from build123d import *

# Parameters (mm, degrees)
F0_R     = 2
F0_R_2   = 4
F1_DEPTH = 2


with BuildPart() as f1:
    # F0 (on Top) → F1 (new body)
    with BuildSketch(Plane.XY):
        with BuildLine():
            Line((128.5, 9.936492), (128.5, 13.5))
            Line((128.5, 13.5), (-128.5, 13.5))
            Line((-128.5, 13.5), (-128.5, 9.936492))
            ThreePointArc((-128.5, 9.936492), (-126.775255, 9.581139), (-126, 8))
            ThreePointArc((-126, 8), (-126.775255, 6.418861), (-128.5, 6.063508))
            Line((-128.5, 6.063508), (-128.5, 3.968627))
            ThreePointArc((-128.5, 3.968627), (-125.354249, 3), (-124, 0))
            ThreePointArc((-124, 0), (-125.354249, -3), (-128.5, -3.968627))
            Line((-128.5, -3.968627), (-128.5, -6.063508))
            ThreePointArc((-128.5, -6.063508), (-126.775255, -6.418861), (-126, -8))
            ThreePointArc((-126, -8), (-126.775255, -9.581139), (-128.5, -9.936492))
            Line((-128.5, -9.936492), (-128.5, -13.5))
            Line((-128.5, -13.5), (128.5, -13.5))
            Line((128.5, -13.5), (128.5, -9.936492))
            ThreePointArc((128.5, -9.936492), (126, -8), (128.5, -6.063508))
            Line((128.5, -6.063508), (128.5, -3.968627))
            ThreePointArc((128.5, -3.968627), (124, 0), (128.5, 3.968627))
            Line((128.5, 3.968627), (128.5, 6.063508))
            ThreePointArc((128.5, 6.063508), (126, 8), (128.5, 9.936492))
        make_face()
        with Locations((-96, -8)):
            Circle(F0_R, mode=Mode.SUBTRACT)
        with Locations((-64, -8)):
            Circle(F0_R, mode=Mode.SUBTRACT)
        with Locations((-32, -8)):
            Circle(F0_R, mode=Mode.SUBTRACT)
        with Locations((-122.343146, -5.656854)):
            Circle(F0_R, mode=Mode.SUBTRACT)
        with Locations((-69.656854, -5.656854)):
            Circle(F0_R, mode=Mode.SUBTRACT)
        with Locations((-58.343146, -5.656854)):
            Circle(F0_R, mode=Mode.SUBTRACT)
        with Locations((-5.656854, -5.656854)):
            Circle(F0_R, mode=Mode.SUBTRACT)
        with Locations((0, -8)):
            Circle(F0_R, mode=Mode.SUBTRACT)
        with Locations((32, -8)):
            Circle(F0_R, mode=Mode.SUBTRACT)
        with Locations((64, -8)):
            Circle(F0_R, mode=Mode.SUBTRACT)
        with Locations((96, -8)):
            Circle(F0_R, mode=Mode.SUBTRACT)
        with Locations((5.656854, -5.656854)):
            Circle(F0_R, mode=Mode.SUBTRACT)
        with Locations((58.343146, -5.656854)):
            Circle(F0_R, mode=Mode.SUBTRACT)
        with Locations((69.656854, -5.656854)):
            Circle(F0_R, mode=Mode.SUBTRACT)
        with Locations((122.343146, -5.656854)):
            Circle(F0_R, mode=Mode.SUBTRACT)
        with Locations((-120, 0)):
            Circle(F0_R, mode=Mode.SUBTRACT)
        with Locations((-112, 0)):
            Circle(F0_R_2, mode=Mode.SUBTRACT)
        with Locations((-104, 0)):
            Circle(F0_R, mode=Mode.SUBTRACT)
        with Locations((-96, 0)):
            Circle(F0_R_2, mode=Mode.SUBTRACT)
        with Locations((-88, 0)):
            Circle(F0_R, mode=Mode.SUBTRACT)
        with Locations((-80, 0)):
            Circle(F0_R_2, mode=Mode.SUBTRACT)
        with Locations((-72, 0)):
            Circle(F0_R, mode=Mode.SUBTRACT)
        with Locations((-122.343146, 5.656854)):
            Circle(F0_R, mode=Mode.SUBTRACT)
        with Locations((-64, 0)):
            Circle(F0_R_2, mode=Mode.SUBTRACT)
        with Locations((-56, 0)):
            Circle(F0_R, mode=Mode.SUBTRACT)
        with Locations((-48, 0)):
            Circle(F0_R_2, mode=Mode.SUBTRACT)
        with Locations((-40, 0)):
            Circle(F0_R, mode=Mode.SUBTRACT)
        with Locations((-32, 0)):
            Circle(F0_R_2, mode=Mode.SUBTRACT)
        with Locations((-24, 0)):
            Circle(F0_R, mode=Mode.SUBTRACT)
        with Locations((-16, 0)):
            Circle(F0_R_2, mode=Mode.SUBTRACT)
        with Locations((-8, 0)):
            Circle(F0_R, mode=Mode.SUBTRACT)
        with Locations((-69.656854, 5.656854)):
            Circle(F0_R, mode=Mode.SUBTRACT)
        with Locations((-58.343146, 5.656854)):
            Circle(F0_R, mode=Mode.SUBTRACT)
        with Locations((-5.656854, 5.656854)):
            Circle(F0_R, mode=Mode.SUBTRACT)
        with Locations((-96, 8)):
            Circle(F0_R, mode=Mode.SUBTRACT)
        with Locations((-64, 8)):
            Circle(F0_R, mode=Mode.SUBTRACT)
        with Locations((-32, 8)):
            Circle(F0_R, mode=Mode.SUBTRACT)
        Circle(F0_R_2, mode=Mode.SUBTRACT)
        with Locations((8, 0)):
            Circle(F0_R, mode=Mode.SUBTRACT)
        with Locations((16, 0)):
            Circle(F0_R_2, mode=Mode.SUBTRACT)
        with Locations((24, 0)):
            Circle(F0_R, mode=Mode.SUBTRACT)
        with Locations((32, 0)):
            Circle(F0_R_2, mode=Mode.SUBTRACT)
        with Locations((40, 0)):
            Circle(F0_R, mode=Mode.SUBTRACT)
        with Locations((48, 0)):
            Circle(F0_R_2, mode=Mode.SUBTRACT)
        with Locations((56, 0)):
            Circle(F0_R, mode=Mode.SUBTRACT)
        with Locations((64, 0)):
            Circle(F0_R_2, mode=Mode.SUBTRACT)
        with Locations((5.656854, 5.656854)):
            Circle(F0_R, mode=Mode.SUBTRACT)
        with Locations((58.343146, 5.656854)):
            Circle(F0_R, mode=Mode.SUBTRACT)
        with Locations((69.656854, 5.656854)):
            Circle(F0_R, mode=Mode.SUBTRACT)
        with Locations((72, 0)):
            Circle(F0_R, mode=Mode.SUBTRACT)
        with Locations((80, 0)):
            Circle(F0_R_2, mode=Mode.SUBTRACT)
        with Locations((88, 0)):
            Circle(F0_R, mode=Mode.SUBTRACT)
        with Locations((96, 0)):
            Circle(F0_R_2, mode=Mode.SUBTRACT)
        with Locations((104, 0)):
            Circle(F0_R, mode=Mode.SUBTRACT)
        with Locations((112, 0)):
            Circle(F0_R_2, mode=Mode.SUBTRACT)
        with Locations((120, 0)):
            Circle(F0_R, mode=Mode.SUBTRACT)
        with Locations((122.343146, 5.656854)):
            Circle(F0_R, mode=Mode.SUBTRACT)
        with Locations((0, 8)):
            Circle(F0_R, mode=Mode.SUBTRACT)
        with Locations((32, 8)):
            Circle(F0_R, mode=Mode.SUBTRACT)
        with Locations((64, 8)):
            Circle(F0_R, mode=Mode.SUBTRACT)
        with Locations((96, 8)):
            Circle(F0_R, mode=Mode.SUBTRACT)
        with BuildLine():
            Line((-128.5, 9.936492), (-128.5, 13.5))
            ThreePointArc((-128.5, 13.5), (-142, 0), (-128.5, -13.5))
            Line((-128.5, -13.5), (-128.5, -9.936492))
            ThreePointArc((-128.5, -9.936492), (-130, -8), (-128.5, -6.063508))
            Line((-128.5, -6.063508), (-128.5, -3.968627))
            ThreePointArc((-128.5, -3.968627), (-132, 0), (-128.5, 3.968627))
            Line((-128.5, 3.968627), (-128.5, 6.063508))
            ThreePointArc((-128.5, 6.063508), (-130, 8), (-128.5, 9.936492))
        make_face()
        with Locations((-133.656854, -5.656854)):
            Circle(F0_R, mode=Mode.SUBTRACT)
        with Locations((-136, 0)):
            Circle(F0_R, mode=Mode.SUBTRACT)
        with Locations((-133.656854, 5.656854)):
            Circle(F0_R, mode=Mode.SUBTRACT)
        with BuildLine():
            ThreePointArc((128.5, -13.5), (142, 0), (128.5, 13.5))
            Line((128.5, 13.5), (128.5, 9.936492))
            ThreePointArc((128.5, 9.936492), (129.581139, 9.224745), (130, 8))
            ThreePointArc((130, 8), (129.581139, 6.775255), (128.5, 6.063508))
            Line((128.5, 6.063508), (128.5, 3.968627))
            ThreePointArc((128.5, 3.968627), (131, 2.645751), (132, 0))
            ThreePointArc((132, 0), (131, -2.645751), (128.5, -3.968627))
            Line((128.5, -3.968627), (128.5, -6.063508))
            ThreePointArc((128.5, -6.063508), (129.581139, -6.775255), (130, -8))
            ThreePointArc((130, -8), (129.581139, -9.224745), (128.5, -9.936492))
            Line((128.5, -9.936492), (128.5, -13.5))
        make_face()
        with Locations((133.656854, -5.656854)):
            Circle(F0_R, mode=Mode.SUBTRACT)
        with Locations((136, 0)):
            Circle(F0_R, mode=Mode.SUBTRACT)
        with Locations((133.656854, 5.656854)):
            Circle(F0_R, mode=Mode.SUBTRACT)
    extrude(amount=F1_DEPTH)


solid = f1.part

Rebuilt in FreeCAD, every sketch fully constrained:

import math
import FreeCAD as App
import Part
import Sketcher
Q = App.Units.Quantity

doc = App.newDocument("Part")
body = doc.addObject("PartDesign::Body", "Body")

sketch1 = body.newObject("Sketcher::SketchObject", "Sketch")
sketch1.AttachmentSupport = (doc.getObject("XY_Plane"), [""])
sketch1.MapMode = "FlatFace"
sketch1.addGeometry(Part.LineSegment(App.Vector(128.5, 13.5, 0), App.Vector(-128.5, 13.5, 0)), False)
sketch1.addGeometry(Part.ArcOfCircle(Part.Circle(App.Vector(-128.5, 0, 0), App.Vector(0, 0, 1), 13.5), math.radians(90), math.radians(270)), False)
sketch1.addGeometry(Part.LineSegment(App.Vector(-128.5, -13.5, 0), App.Vector(128.5, -13.5, 0)), False)
sketch1.addGeometry(Part.ArcOfCircle(Part.Circle(App.Vector(128.5, 0, 0), App.Vector(0, 0, 1), 13.5), math.radians(-90), math.radians(90)), False)
sketch1.addGeometry(Part.ArcOfCircle(Part.Circle(App.Vector(-128, -8, 0), App.Vector(0, 0, 1), 2), math.radians(-104), math.radians(0)), False)
sketch1.addGeometry(Part.ArcOfCircle(Part.Circle(App.Vector(-128, -8, 0), App.Vector(0, 0, 1), 2), math.radians(104), math.radians(256)), False)
sketch1.addGeometry(Part.ArcOfCircle(Part.Circle(App.Vector(-128, -8, 0), App.Vector(0, 0, 1), 2), math.radians(0), math.radians(104)), False)
sketch1.addGeometry(Part.Circle(App.Vector(-96, -8, 0), App.Vector(0, 0, 1), 2), False)
sketch1.addGeometry(Part.Circle(App.Vector(-133.7, -5.7, 0), App.Vector(0, 0, 1), 2), False)
sketch1.addGeometry(Part.Circle(App.Vector(-122.3, -5.7, 0), App.Vector(0, 0, 1), 2), False)
sketch1.addGeometry(Part.Circle(App.Vector(-69.7, -5.7, 0), App.Vector(0, 0, 1), 2), False)
sketch1.addGeometry(Part.Circle(App.Vector(-64, -8, 0), App.Vector(0, 0, 1), 2), False)
sketch1.addGeometry(Part.Circle(App.Vector(-32, -8, 0), App.Vector(0, 0, 1), 2), False)
sketch1.addGeometry(Part.Circle(App.Vector(-58.3, -5.7, 0), App.Vector(0, 0, 1), 2), False)
sketch1.addGeometry(Part.Circle(App.Vector(-5.7, -5.7, 0), App.Vector(0, 0, 1), 2), False)
sketch1.addGeometry(Part.Circle(App.Vector(-136, 0, 0), App.Vector(0, 0, 1), 2), False)
sketch1.addGeometry(Part.ArcOfCircle(Part.Circle(App.Vector(-128, 0, 0), App.Vector(0, 0, 1), 4), math.radians(0), math.radians(97)), False)
sketch1.addGeometry(Part.ArcOfCircle(Part.Circle(App.Vector(-128, 0, 0), App.Vector(0, 0, 1), 4), math.radians(-97), math.radians(0)), False)
sketch1.addGeometry(Part.ArcOfCircle(Part.Circle(App.Vector(-128, 0, 0), App.Vector(0, 0, 1), 4), math.radians(97), math.radians(263)), False)
sketch1.addGeometry(Part.Circle(App.Vector(-120, 0, 0), App.Vector(0, 0, 1), 2), False)
sketch1.addGeometry(Part.Circle(App.Vector(-112, 0, 0), App.Vector(0, 0, 1), 4), False)
sketch1.addGeometry(Part.Circle(App.Vector(-104, 0, 0), App.Vector(0, 0, 1), 2), False)
sketch1.addGeometry(Part.Circle(App.Vector(-96, 0, 0), App.Vector(0, 0, 1), 4), False)
sketch1.addGeometry(Part.Circle(App.Vector(-88, 0, 0), App.Vector(0, 0, 1), 2), False)
sketch1.addGeometry(Part.Circle(App.Vector(-80, 0, 0), App.Vector(0, 0, 1), 4), False)
sketch1.addGeometry(Part.Circle(App.Vector(-72, 0, 0), App.Vector(0, 0, 1), 2), False)
sketch1.addGeometry(Part.Circle(App.Vector(-64, 0, 0), App.Vector(0, 0, 1), 4), False)
sketch1.addGeometry(Part.Circle(App.Vector(-56, 0, 0), App.Vector(0, 0, 1), 2), False)
sketch1.addGeometry(Part.Circle(App.Vector(-48, 0, 0), App.Vector(0, 0, 1), 4), False)
sketch1.addGeometry(Part.Circle(App.Vector(-40, 0, 0), App.Vector(0, 0, 1), 2), False)
sketch1.addGeometry(Part.Circle(App.Vector(-32, 0, 0), App.Vector(0, 0, 1), 4), False)
sketch1.addGeometry(Part.Circle(App.Vector(-24, 0, 0), App.Vector(0, 0, 1), 2), False)
sketch1.addGeometry(Part.Circle(App.Vector(-16, 0, 0), App.Vector(0, 0, 1), 4), False)
sketch1.addGeometry(Part.Circle(App.Vector(-8, 0, 0), App.Vector(0, 0, 1), 2), False)
sketch1.addGeometry(Part.Circle(App.Vector(0, -8, 0), App.Vector(0, 0, 1), 2), False)
sketch1.addGeometry(Part.Circle(App.Vector(32, -8, 0), App.Vector(0, 0, 1), 2), False)
sketch1.addGeometry(Part.Circle(App.Vector(64, -8, 0), App.Vector(0, 0, 1), 2), False)
sketch1.addGeometry(Part.Circle(App.Vector(5.7, -5.7, 0), App.Vector(0, 0, 1), 2), False)
sketch1.addGeometry(Part.Circle(App.Vector(58.3, -5.7, 0), App.Vector(0, 0, 1), 2), False)
sketch1.addGeometry(Part.Circle(App.Vector(96, -8, 0), App.Vector(0, 0, 1), 2), False)
sketch1.addGeometry(Part.ArcOfCircle(Part.Circle(App.Vector(128, -8, 0), App.Vector(0, 0, 1), 2), math.radians(76), math.radians(284)), False)
sketch1.addGeometry(Part.ArcOfCircle(Part.Circle(App.Vector(128, -8, 0), App.Vector(0, 0, 1), 2), math.radians(0), math.radians(76)), False)
sketch1.addGeometry(Part.ArcOfCircle(Part.Circle(App.Vector(128, -8, 0), App.Vector(0, 0, 1), 2), math.radians(-76), math.radians(0)), False)
sketch1.addGeometry(Part.Circle(App.Vector(69.7, -5.7, 0), App.Vector(0, 0, 1), 2), False)
sketch1.addGeometry(Part.Circle(App.Vector(122.3, -5.7, 0), App.Vector(0, 0, 1), 2), False)
sketch1.addGeometry(Part.Circle(App.Vector(133.7, -5.7, 0), App.Vector(0, 0, 1), 2), False)
sketch1.addGeometry(Part.Circle(App.Vector(0, 0, 0), App.Vector(0, 0, 1), 4), False)
sketch1.addGeometry(Part.Circle(App.Vector(8, 0, 0), App.Vector(0, 0, 1), 2), False)
sketch1.addGeometry(Part.Circle(App.Vector(16, 0, 0), App.Vector(0, 0, 1), 4), False)
sketch1.addGeometry(Part.Circle(App.Vector(24, 0, 0), App.Vector(0, 0, 1), 2), False)
sketch1.addGeometry(Part.Circle(App.Vector(32, 0, 0), App.Vector(0, 0, 1), 4), False)
sketch1.addGeometry(Part.Circle(App.Vector(40, 0, 0), App.Vector(0, 0, 1), 2), False)
sketch1.addGeometry(Part.Circle(App.Vector(48, 0, 0), App.Vector(0, 0, 1), 4), False)
sketch1.addGeometry(Part.Circle(App.Vector(56, 0, 0), App.Vector(0, 0, 1), 2), False)
sketch1.addGeometry(Part.Circle(App.Vector(64, 0, 0), App.Vector(0, 0, 1), 4), False)
sketch1.addGeometry(Part.Circle(App.Vector(72, 0, 0), App.Vector(0, 0, 1), 2), False)
sketch1.addGeometry(Part.Circle(App.Vector(80, 0, 0), App.Vector(0, 0, 1), 4), False)
sketch1.addGeometry(Part.Circle(App.Vector(88, 0, 0), App.Vector(0, 0, 1), 2), False)
sketch1.addGeometry(Part.Circle(App.Vector(96, 0, 0), App.Vector(0, 0, 1), 4), False)
sketch1.addGeometry(Part.Circle(App.Vector(104, 0, 0), App.Vector(0, 0, 1), 2), False)
sketch1.addGeometry(Part.Circle(App.Vector(112, 0, 0), App.Vector(0, 0, 1), 4), False)
sketch1.addGeometry(Part.Circle(App.Vector(120, 0, 0), App.Vector(0, 0, 1), 2), False)
sketch1.addGeometry(Part.Circle(App.Vector(136, 0, 0), App.Vector(0, 0, 1), 2), False)
sketch1.addGeometry(Part.Circle(App.Vector(-133.7, 5.7, 0), App.Vector(0, 0, 1), 2), False)
sketch1.addGeometry(Part.Circle(App.Vector(-122.3, 5.7, 0), App.Vector(0, 0, 1), 2), False)
sketch1.addGeometry(Part.Circle(App.Vector(-69.7, 5.7, 0), App.Vector(0, 0, 1), 2), False)
sketch1.addGeometry(Part.ArcOfCircle(Part.Circle(App.Vector(-128, 8, 0), App.Vector(0, 0, 1), 2), math.radians(0), math.radians(104)), False)
sketch1.addGeometry(Part.ArcOfCircle(Part.Circle(App.Vector(-128, 8, 0), App.Vector(0, 0, 1), 2), math.radians(-104), math.radians(0)), False)
sketch1.addGeometry(Part.ArcOfCircle(Part.Circle(App.Vector(-128, 8, 0), App.Vector(0, 0, 1), 2), math.radians(104), math.radians(256)), False)
sketch1.addGeometry(Part.Circle(App.Vector(-96, 8, 0), App.Vector(0, 0, 1), 2), False)
sketch1.addGeometry(Part.Circle(App.Vector(-58.3, 5.7, 0), App.Vector(0, 0, 1), 2), False)
sketch1.addGeometry(Part.Circle(App.Vector(-5.7, 5.7, 0), App.Vector(0, 0, 1), 2), False)
sketch1.addGeometry(Part.Circle(App.Vector(-64, 8, 0), App.Vector(0, 0, 1), 2), False)
sketch1.addGeometry(Part.Circle(App.Vector(-32, 8, 0), App.Vector(0, 0, 1), 2), False)
sketch1.addGeometry(Part.ArcOfCircle(Part.Circle(App.Vector(128, 0, 0), App.Vector(0, 0, 1), 4), math.radians(83), math.radians(277)), False)
sketch1.addGeometry(Part.ArcOfCircle(Part.Circle(App.Vector(128, 0, 0), App.Vector(0, 0, 1), 4), math.radians(0), math.radians(83)), False)
sketch1.addGeometry(Part.ArcOfCircle(Part.Circle(App.Vector(128, 0, 0), App.Vector(0, 0, 1), 4), math.radians(-83), math.radians(0)), False)
sketch1.addGeometry(Part.Circle(App.Vector(5.7, 5.7, 0), App.Vector(0, 0, 1), 2), False)
sketch1.addGeometry(Part.Circle(App.Vector(58.3, 5.7, 0), App.Vector(0, 0, 1), 2), False)
sketch1.addGeometry(Part.Circle(App.Vector(0, 8, 0), App.Vector(0, 0, 1), 2), False)
sketch1.addGeometry(Part.Circle(App.Vector(32, 8, 0), App.Vector(0, 0, 1), 2), False)
sketch1.addGeometry(Part.Circle(App.Vector(64, 8, 0), App.Vector(0, 0, 1), 2), False)
sketch1.addGeometry(Part.Circle(App.Vector(69.7, 5.7, 0), App.Vector(0, 0, 1), 2), False)
sketch1.addGeometry(Part.Circle(App.Vector(122.3, 5.7, 0), App.Vector(0, 0, 1), 2), False)
sketch1.addGeometry(Part.Circle(App.Vector(133.7, 5.7, 0), App.Vector(0, 0, 1), 2), False)
sketch1.addGeometry(Part.Circle(App.Vector(96, 8, 0), App.Vector(0, 0, 1), 2), False)
sketch1.addGeometry(Part.ArcOfCircle(Part.Circle(App.Vector(128, 8, 0), App.Vector(0, 0, 1), 2), math.radians(76), math.radians(284)), False)
sketch1.addGeometry(Part.ArcOfCircle(Part.Circle(App.Vector(128, 8, 0), App.Vector(0, 0, 1), 2), math.radians(0), math.radians(76)), False)
sketch1.addGeometry(Part.ArcOfCircle(Part.Circle(App.Vector(128, 8, 0), App.Vector(0, 0, 1), 2), math.radians(-76), math.radians(0)), False)
sketch1.addConstraint(Sketcher.Constraint("Tangent", 0, 2, 1, 1))
sketch1.addConstraint(Sketcher.Constraint("Tangent", 1, 2, 2, 1))
sketch1.addConstraint(Sketcher.Constraint("Tangent", 2, 2, 3, 1))
sketch1.addConstraint(Sketcher.Constraint("Tangent", 3, 2, 0, 1))
sketch1.addConstraint(Sketcher.Constraint("Tangent", 4, 1, 5, 2))
sketch1.addConstraint(Sketcher.Constraint("Tangent", 5, 1, 6, 2))
sketch1.addConstraint(Sketcher.Constraint("Tangent", 6, 1, 4, 2))
sketch1.addConstraint(Sketcher.Constraint("Tangent", 16, 1, 17, 2))
sketch1.addConstraint(Sketcher.Constraint("Tangent", 17, 1, 18, 2))
sketch1.addConstraint(Sketcher.Constraint("Tangent", 18, 1, 16, 2))
sketch1.addConstraint(Sketcher.Constraint("Tangent", 40, 1, 41, 2))
sketch1.addConstraint(Sketcher.Constraint("Tangent", 41, 1, 42, 2))
sketch1.addConstraint(Sketcher.Constraint("Tangent", 42, 1, 40, 2))
sketch1.addConstraint(Sketcher.Constraint("Tangent", 66, 1, 67, 2))
sketch1.addConstraint(Sketcher.Constraint("Tangent", 67, 1, 68, 2))
sketch1.addConstraint(Sketcher.Constraint("Tangent", 68, 1, 66, 2))
sketch1.addConstraint(Sketcher.Constraint("Tangent", 74, 1, 75, 2))
sketch1.addConstraint(Sketcher.Constraint("Tangent", 75, 1, 76, 2))
sketch1.addConstraint(Sketcher.Constraint("Tangent", 76, 1, 74, 2))
sketch1.addConstraint(Sketcher.Constraint("Tangent", 86, 1, 87, 2))
sketch1.addConstraint(Sketcher.Constraint("Tangent", 87, 1, 88, 2))
sketch1.addConstraint(Sketcher.Constraint("Tangent", 88, 1, 86, 2))
sketch1.addConstraint(Sketcher.Constraint("Horizontal", 0))
sketch1.addConstraint(Sketcher.Constraint("Horizontal", 2))
sketch1.addConstraint(Sketcher.Constraint("Coincident", 46, 3, -1, 1))
sketch1.addConstraint(Sketcher.Constraint("Equal", 6, 7))
sketch1.addConstraint(Sketcher.Constraint("Equal", 7, 8))
sketch1.addConstraint(Sketcher.Constraint("Equal", 8, 9))
sketch1.addConstraint(Sketcher.Constraint("Equal", 9, 10))
sketch1.addConstraint(Sketcher.Constraint("Equal", 10, 11))
sketch1.addConstraint(Sketcher.Constraint("Equal", 11, 12))
sketch1.addConstraint(Sketcher.Constraint("Equal", 12, 13))
sketch1.addConstraint(Sketcher.Constraint("Equal", 13, 14))
sketch1.addConstraint(Sketcher.Constraint("Equal", 14, 15))
sketch1.addConstraint(Sketcher.Constraint("Equal", 15, 19))
sketch1.addConstraint(Sketcher.Constraint("Equal", 18, 20))
sketch1.addConstraint(Sketcher.Constraint("Equal", 19, 21))
sketch1.addConstraint(Sketcher.Constraint("Equal", 20, 22))
sketch1.addConstraint(Sketcher.Constraint("Equal", 21, 23))
sketch1.addConstraint(Sketcher.Constraint("Equal", 22, 24))
sketch1.addConstraint(Sketcher.Constraint("Equal", 23, 25))
sketch1.addConstraint(Sketcher.Constraint("Equal", 24, 26))
sketch1.addConstraint(Sketcher.Constraint("Equal", 25, 27))
sketch1.addConstraint(Sketcher.Constraint("Equal", 26, 28))
sketch1.addConstraint(Sketcher.Constraint("Equal", 27, 29))
sketch1.addConstraint(Sketcher.Constraint("Equal", 28, 30))
sketch1.addConstraint(Sketcher.Constraint("Equal", 29, 31))
sketch1.addConstraint(Sketcher.Constraint("Equal", 30, 32))
sketch1.addConstraint(Sketcher.Constraint("Equal", 31, 33))
sketch1.addConstraint(Sketcher.Constraint("Equal", 33, 34))
sketch1.addConstraint(Sketcher.Constraint("Equal", 34, 35))
sketch1.addConstraint(Sketcher.Constraint("Equal", 35, 36))
sketch1.addConstraint(Sketcher.Constraint("Equal", 36, 37))
sketch1.addConstraint(Sketcher.Constraint("Equal", 37, 38))
sketch1.addConstraint(Sketcher.Constraint("Equal", 38, 39))
sketch1.addConstraint(Sketcher.Constraint("Equal", 39, 40))
sketch1.addConstraint(Sketcher.Constraint("Equal", 42, 43))
sketch1.addConstraint(Sketcher.Constraint("Equal", 43, 44))
sketch1.addConstraint(Sketcher.Constraint("Equal", 44, 45))
sketch1.addConstraint(Sketcher.Constraint("Equal", 32, 46))
sketch1.addConstraint(Sketcher.Constraint("Equal", 45, 47))
sketch1.addConstraint(Sketcher.Constraint("Equal", 46, 48))
sketch1.addConstraint(Sketcher.Constraint("Equal", 47, 49))
sketch1.addConstraint(Sketcher.Constraint("Equal", 48, 50))
sketch1.addConstraint(Sketcher.Constraint("Equal", 49, 51))
sketch1.addConstraint(Sketcher.Constraint("Equal", 50, 52))
sketch1.addConstraint(Sketcher.Constraint("Equal", 51, 53))
sketch1.addConstraint(Sketcher.Constraint("Equal", 52, 54))
sketch1.addConstraint(Sketcher.Constraint("Equal", 53, 55))
sketch1.addConstraint(Sketcher.Constraint("Equal", 54, 56))
sketch1.addConstraint(Sketcher.Constraint("Equal", 55, 57))
sketch1.addConstraint(Sketcher.Constraint("Equal", 56, 58))
sketch1.addConstraint(Sketcher.Constraint("Equal", 57, 59))
sketch1.addConstraint(Sketcher.Constraint("Equal", 58, 60))
sketch1.addConstraint(Sketcher.Constraint("Equal", 59, 61))
sketch1.addConstraint(Sketcher.Constraint("Equal", 61, 62))
sketch1.addConstraint(Sketcher.Constraint("Equal", 62, 63))
sketch1.addConstraint(Sketcher.Constraint("Equal", 63, 64))
sketch1.addConstraint(Sketcher.Constraint("Equal", 64, 65))
sketch1.addConstraint(Sketcher.Constraint("Equal", 65, 66))
sketch1.addConstraint(Sketcher.Constraint("Equal", 68, 69))
sketch1.addConstraint(Sketcher.Constraint("Equal", 69, 70))
sketch1.addConstraint(Sketcher.Constraint("Equal", 70, 71))
sketch1.addConstraint(Sketcher.Constraint("Equal", 71, 72))
sketch1.addConstraint(Sketcher.Constraint("Equal", 72, 73))
sketch1.addConstraint(Sketcher.Constraint("Equal", 60, 74))
sketch1.addConstraint(Sketcher.Constraint("Equal", 73, 77))
sketch1.addConstraint(Sketcher.Constraint("Equal", 77, 78))
sketch1.addConstraint(Sketcher.Constraint("Equal", 78, 79))
sketch1.addConstraint(Sketcher.Constraint("Equal", 79, 80))
sketch1.addConstraint(Sketcher.Constraint("Equal", 80, 81))
sketch1.addConstraint(Sketcher.Constraint("Equal", 81, 82))
sketch1.addConstraint(Sketcher.Constraint("Equal", 82, 83))
sketch1.addConstraint(Sketcher.Constraint("Equal", 83, 84))
sketch1.addConstraint(Sketcher.Constraint("Equal", 84, 85))
sketch1.addConstraint(Sketcher.Constraint("Equal", 85, 86))
sketch1.addConstraint(Sketcher.Constraint("Symmetric", 1, 3, 3, 3, -1, 1))
sketch1.addConstraint(Sketcher.Constraint("Symmetric", 33, 3, 47, 3, -1, 1))
sketch1.addConstraint(Sketcher.Constraint("Symmetric", 32, 3, 48, 3, -1, 1))
sketch1.addConstraint(Sketcher.Constraint("Symmetric", 31, 3, 49, 3, -1, 1))
sketch1.addConstraint(Sketcher.Constraint("Symmetric", 30, 3, 50, 3, -1, 1))
sketch1.addConstraint(Sketcher.Constraint("Symmetric", 29, 3, 51, 3, -1, 1))
sketch1.addConstraint(Sketcher.Constraint("Symmetric", 28, 3, 52, 3, -1, 1))
sketch1.addConstraint(Sketcher.Constraint("Symmetric", 27, 3, 53, 3, -1, 1))
sketch1.addConstraint(Sketcher.Constraint("Symmetric", 26, 3, 54, 3, -1, 1))
sketch1.addConstraint(Sketcher.Constraint("Symmetric", 25, 3, 55, 3, -1, 1))
sketch1.addConstraint(Sketcher.Constraint("Symmetric", 24, 3, 56, 3, -1, 1))
sketch1.addConstraint(Sketcher.Constraint("Symmetric", 23, 3, 57, 3, -1, 1))
sketch1.addConstraint(Sketcher.Constraint("Symmetric", 22, 3, 58, 3, -1, 1))
sketch1.addConstraint(Sketcher.Constraint("Symmetric", 21, 3, 59, 3, -1, 1))
sketch1.addConstraint(Sketcher.Constraint("Symmetric", 20, 3, 60, 3, -1, 1))
sketch1.addConstraint(Sketcher.Constraint("Symmetric", 19, 3, 61, 3, -1, 1))
sketch1.addConstraint(Sketcher.Constraint("Symmetric", 15, 3, 62, 3, -1, 1))
sketch1.addConstraint(Sketcher.Constraint("Symmetric", 45, 3, 63, 3, -1, 1))
sketch1.addConstraint(Sketcher.Constraint("Symmetric", 44, 3, 64, 3, -1, 1))
sketch1.addConstraint(Sketcher.Constraint("Symmetric", 43, 3, 65, 3, -1, 1))
sketch1.addConstraint(Sketcher.Constraint("Symmetric", 40, 3, 66, 3, -1, 1))
sketch1.addConstraint(Sketcher.Constraint("Symmetric", 39, 3, 69, 3, -1, 1))
sketch1.addConstraint(Sketcher.Constraint("Symmetric", 38, 3, 70, 3, -1, 1))
sketch1.addConstraint(Sketcher.Constraint("Symmetric", 37, 3, 71, 3, -1, 1))
sketch1.addConstraint(Sketcher.Constraint("Symmetric", 36, 3, 72, 3, -1, 1))
sketch1.addConstraint(Sketcher.Constraint("Symmetric", 35, 3, 73, 3, -1, 1))
sketch1.addConstraint(Sketcher.Constraint("Symmetric", 16, 3, 74, 3, -1, 1))
sketch1.addConstraint(Sketcher.Constraint("Symmetric", 14, 3, 77, 3, -1, 1))
sketch1.addConstraint(Sketcher.Constraint("Symmetric", 13, 3, 78, 3, -1, 1))
sketch1.addConstraint(Sketcher.Constraint("Symmetric", 34, 3, 79, 3, -1, 1))
sketch1.addConstraint(Sketcher.Constraint("Symmetric", 12, 3, 80, 3, -1, 1))
sketch1.addConstraint(Sketcher.Constraint("Symmetric", 11, 3, 81, 3, -1, 1))
sketch1.addConstraint(Sketcher.Constraint("Symmetric", 10, 3, 82, 3, -1, 1))
sketch1.addConstraint(Sketcher.Constraint("Symmetric", 9, 3, 83, 3, -1, 1))
sketch1.addConstraint(Sketcher.Constraint("Symmetric", 8, 3, 84, 3, -1, 1))
sketch1.addConstraint(Sketcher.Constraint("Symmetric", 7, 3, 85, 3, -1, 1))
sketch1.addConstraint(Sketcher.Constraint("Symmetric", 4, 3, 86, 3, -1, 1))
sketch1.addConstraint(Sketcher.Constraint("Symmetric", 12, 3, 35, 3, -2))
sketch1.addConstraint(Sketcher.Constraint("Symmetric", 11, 3, 36, 3, -2))
sketch1.addConstraint(Sketcher.Constraint("Symmetric", 14, 3, 37, 3, -2))
sketch1.addConstraint(Sketcher.Constraint("Symmetric", 13, 3, 38, 3, -2))
sketch1.addConstraint(Sketcher.Constraint("Symmetric", 7, 3, 39, 3, -2))
sketch1.addConstraint(Sketcher.Constraint("Symmetric", 4, 3, 40, 3, -2))
sketch1.addConstraint(Sketcher.Constraint("Symmetric", 10, 3, 43, 3, -2))
sketch1.addConstraint(Sketcher.Constraint("Symmetric", 9, 3, 44, 3, -2))
sketch1.addConstraint(Sketcher.Constraint("Symmetric", 8, 3, 45, 3, -2))
sketch1.addConstraint(Sketcher.Constraint("Symmetric", 18, 1, 74, 1, -2))
sketch1.addConstraint(Sketcher.Constraint("PointOnObject", 15, 3, -1))
sketch1.addConstraint(Sketcher.Constraint("PointOnObject", 19, 3, -1))
sketch1.addConstraint(Sketcher.Constraint("PointOnObject", 20, 3, -1))
sketch1.addConstraint(Sketcher.Constraint("PointOnObject", 21, 3, -1))
sketch1.addConstraint(Sketcher.Constraint("PointOnObject", 22, 3, -1))
sketch1.addConstraint(Sketcher.Constraint("PointOnObject", 23, 3, -1))
sketch1.addConstraint(Sketcher.Constraint("PointOnObject", 24, 3, -1))
sketch1.addConstraint(Sketcher.Constraint("PointOnObject", 25, 3, -1))
sketch1.addConstraint(Sketcher.Constraint("PointOnObject", 26, 3, -1))
sketch1.addConstraint(Sketcher.Constraint("PointOnObject", 27, 3, -1))
sketch1.addConstraint(Sketcher.Constraint("PointOnObject", 28, 3, -1))
sketch1.addConstraint(Sketcher.Constraint("PointOnObject", 29, 3, -1))
sketch1.addConstraint(Sketcher.Constraint("PointOnObject", 30, 3, -1))
sketch1.addConstraint(Sketcher.Constraint("PointOnObject", 31, 3, -1))
sketch1.addConstraint(Sketcher.Constraint("PointOnObject", 32, 3, -1))
sketch1.addConstraint(Sketcher.Constraint("PointOnObject", 33, 3, -1))
sketch1.addConstraint(Sketcher.Constraint("PointOnObject", 34, 3, -2))
sketch1.addConstraint(Sketcher.Constraint("PointOnObject", 16, 1, -1))
sketch1.addConstraint(Sketcher.Constraint("PointOnObject", 75, 1, -1))
sketch1.addConstraint(Sketcher.Constraint("Horizontal", 6, 3, 7, 3))
sketch1.addConstraint(Sketcher.Constraint("Horizontal", 8, 3, 9, 3))
sketch1.addConstraint(Sketcher.Constraint("Horizontal", 9, 3, 10, 3))
sketch1.addConstraint(Sketcher.Constraint("Horizontal", 7, 3, 11, 3))
sketch1.addConstraint(Sketcher.Constraint("Horizontal", 11, 3, 12, 3))
sketch1.addConstraint(Sketcher.Constraint("Horizontal", 10, 3, 13, 3))
sketch1.addConstraint(Sketcher.Constraint("Horizontal", 13, 3, 14, 3))
sketch1.addConstraint(Sketcher.Constraint("Horizontal", 12, 3, 34, 3))
sketch1.addConstraint(Sketcher.Constraint("Horizontal", 42, 3, 6, 1))
sketch1.addConstraint(Sketcher.Constraint("Horizontal", 5, 1, 40, 1))
sketch1.addConstraint(Sketcher.Constraint("Horizontal", 6, 1, 41, 1))
sketch1.addConstraint(Sketcher.Constraint("Horizontal", 4, 1, 42, 1))
sketch1.addConstraint(Sketcher.Constraint("Horizontal", 88, 3, 66, 1))
sketch1.addConstraint(Sketcher.Constraint("Horizontal", 17, 1, 76, 1))
sketch1.addConstraint(Sketcher.Constraint("Horizontal", 68, 1, 86, 1))
sketch1.addConstraint(Sketcher.Constraint("Horizontal", 66, 1, 87, 1))
sketch1.addConstraint(Sketcher.Constraint("Horizontal", 67, 1, 88, 1))
sketch1.addConstraint(Sketcher.Constraint("Vertical", 6, 3, 16, 3))
sketch1.addConstraint(Sketcher.Constraint("Vertical", 7, 3, 22, 3))
sketch1.addConstraint(Sketcher.Constraint("Vertical", 11, 3, 26, 3))
sketch1.addConstraint(Sketcher.Constraint("Vertical", 12, 3, 30, 3))
sketch1.addConstraint(Sketcher.Constraint("Vertical", 1, 2, 4, 1))
sketch1.addConstraint(Sketcher.Constraint("Vertical", 4, 1, 5, 1))
sketch1.addConstraint(Sketcher.Constraint("Vertical", 5, 1, 17, 1))
sketch1.addConstraint(Sketcher.Constraint("Vertical", 17, 1, 18, 1))
sketch1.addConstraint(Sketcher.Constraint("Vertical", 18, 1, 67, 1))
sketch1.addConstraint(Sketcher.Constraint("Vertical", 67, 1, 68, 1))
sketch1.addConstraint(Sketcher.Constraint("Diameter", 7, Q("4 mm")))
sketch1.addConstraint(Sketcher.Constraint("Diameter", 20, Q("8 mm")))
sketch1.addConstraint(Sketcher.Constraint("Radius", 1, Q("13.5 mm")))
sketch1.addConstraint(Sketcher.Constraint("DistanceX", 0, 2, 0, 1, Q("257 mm")))
sketch1.addConstraint(Sketcher.Constraint("DistanceX", 4, 3, -1, 1, Q("128 mm")))
sketch1.addConstraint(Sketcher.Constraint("DistanceY", 4, 3, -1, 1, Q("8 mm")))
sketch1.addConstraint(Sketcher.Constraint("DistanceX", 7, 3, -1, 1, Q("96 mm")))
sketch1.addConstraint(Sketcher.Constraint("DistanceX", 11, 3, -1, 1, Q("64 mm")))
sketch1.addConstraint(Sketcher.Constraint("DistanceX", 12, 3, -1, 1, Q("32 mm")))
sketch1.addConstraint(Sketcher.Constraint("DistanceX", 15, 3, -1, 1, Q("136 mm")))
sketch1.addConstraint(Sketcher.Constraint("DistanceX", 19, 3, -1, 1, Q("120 mm")))
sketch1.addConstraint(Sketcher.Constraint("DistanceX", 20, 3, -1, 1, Q("112 mm")))
sketch1.addConstraint(Sketcher.Constraint("DistanceX", 21, 3, -1, 1, Q("104 mm")))
sketch1.addConstraint(Sketcher.Constraint("DistanceX", 23, 3, -1, 1, Q("88 mm")))
sketch1.addConstraint(Sketcher.Constraint("DistanceX", 24, 3, -1, 1, Q("80 mm")))
sketch1.addConstraint(Sketcher.Constraint("DistanceX", 25, 3, -1, 1, Q("72 mm")))
sketch1.addConstraint(Sketcher.Constraint("DistanceX", 27, 3, -1, 1, Q("56 mm")))
sketch1.addConstraint(Sketcher.Constraint("DistanceX", 28, 3, -1, 1, Q("48 mm")))
sketch1.addConstraint(Sketcher.Constraint("DistanceX", 29, 3, -1, 1, Q("40 mm")))
sketch1.addConstraint(Sketcher.Constraint("DistanceX", 31, 3, -1, 1, Q("24 mm")))
sketch1.addConstraint(Sketcher.Constraint("DistanceX", 32, 3, -1, 1, Q("16 mm")))
sketch1.addConstraint(Sketcher.Constraint("DistanceX", 33, 3, -1, 1, Q("8 mm")))
sketch1.addConstraint(Sketcher.Constraint("DistanceX", 8, 3, -1, 1, Q("133.656854 mm")))
sketch1.addConstraint(Sketcher.Constraint("DistanceY", 8, 3, -1, 1, Q("5.656854 mm")))
sketch1.addConstraint(Sketcher.Constraint("DistanceX", 9, 3, -1, 1, Q("122.343146 mm")))
sketch1.addConstraint(Sketcher.Constraint("DistanceX", 10, 3, -1, 1, Q("69.656854 mm")))
sketch1.addConstraint(Sketcher.Constraint("DistanceX", 13, 3, -1, 1, Q("58.343146 mm")))
sketch1.addConstraint(Sketcher.Constraint("DistanceX", 14, 3, -1, 1, Q("5.656854 mm")))
pad1 = body.newObject("PartDesign::Pad", "Pad")
pad1.Profile = sketch1
pad1.Length = 2

doc.recompute()
